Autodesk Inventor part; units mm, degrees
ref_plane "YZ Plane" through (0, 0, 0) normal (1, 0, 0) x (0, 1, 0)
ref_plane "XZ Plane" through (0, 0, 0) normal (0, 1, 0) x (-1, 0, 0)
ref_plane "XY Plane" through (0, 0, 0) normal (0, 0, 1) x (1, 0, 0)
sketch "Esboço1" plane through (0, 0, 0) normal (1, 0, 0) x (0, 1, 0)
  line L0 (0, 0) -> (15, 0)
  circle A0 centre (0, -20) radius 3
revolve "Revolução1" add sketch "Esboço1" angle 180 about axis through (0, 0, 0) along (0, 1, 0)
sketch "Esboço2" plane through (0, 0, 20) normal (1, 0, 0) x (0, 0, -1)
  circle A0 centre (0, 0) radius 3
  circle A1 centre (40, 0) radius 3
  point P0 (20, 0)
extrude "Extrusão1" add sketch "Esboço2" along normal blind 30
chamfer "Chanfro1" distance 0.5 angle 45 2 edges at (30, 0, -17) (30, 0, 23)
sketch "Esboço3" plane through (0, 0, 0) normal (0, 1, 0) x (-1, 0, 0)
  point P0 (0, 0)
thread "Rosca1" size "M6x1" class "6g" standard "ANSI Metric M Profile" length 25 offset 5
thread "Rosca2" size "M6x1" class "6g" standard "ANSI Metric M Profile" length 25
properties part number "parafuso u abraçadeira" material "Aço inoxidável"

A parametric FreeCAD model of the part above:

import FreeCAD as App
import Part
import Sketcher
from FreeCAD import Vector
Q = App.Units.Quantity


def edges_at(feature, points):
    """Names of the edges that pass closest to the given points."""
    edges = feature.Shape.Edges
    near = lambda p: min(range(len(edges)), key=lambda i: edges[i].distToShape(Part.Vertex(*p))[0])
    return sorted({f"Edge{near(p) + 1}" for p in points})

doc = App.newDocument("Part")
body = doc.addObject("PartDesign::Body", "Body")

# Sketch on YZ plane
sketch1 = doc.addObject("Sketcher::SketchObject", "Sketch")
body.addObject(sketch1)
sketch1.AttachmentSupport = (doc.YZ_Plane, [""])
sketch1.MapMode = "FlatFace"
sketch1.addGeometry(Part.Circle(Vector(0, -20, 0), Vector(0, 0, 1), 3), False)
sketch1.addConstraint([
    Sketcher.Constraint("PointOnObject", 0, 3, -2),
    Sketcher.Constraint("Diameter", 0, Q("6 mm")),
    Sketcher.Constraint("DistanceY", 0, 3, -1, 1, Q("20 mm")),
])
revolution = doc.addObject("PartDesign::Revolution", "Revolution")
body.addObject(revolution)
revolution.Profile = sketch1
revolution.ReferenceAxis = (sketch1, ["H_Axis"])
revolution.Angle = 180

# Sketch on YZ plane
sketch2 = doc.addObject("Sketcher::SketchObject", "Sketch001")
body.addObject(sketch2)
sketch2.AttachmentSupport = (doc.YZ_Plane, [""])
sketch2.MapMode = "FlatFace"
sketch2.addGeometry([
    Part.Circle(Vector(0, 20, 0), Vector(0, 0, 1), 3),
    Part.Circle(Vector(0, -20, 0), Vector(0, 0, 1), 3),
], False)
sketch2.addConstraint([
    Sketcher.Constraint("Equal", 0, 1),
    Sketcher.Constraint("Symmetric", 0, 3, 1, 3, -1, 1),
    Sketcher.Constraint("PointOnObject", 0, 3, -2),
    Sketcher.Constraint("Diameter", 0, Q("6 mm")),
    Sketcher.Constraint("DistanceY", -1, 1, 0, 3, Q("20 mm")),
])
pad1 = doc.addObject("PartDesign::Pad", "Pad")
body.addObject(pad1)
pad1.Profile = sketch2
pad1.Length = 30
doc.recompute()

chamfer = doc.addObject("PartDesign::Chamfer", "Chamfer")
body.addObject(chamfer)
chamfer.Base = (pad1, edges_at(pad1, [(30, 0, -17), (30, 0, 23)]))
chamfer.Size = 0.5

doc.recompute()
